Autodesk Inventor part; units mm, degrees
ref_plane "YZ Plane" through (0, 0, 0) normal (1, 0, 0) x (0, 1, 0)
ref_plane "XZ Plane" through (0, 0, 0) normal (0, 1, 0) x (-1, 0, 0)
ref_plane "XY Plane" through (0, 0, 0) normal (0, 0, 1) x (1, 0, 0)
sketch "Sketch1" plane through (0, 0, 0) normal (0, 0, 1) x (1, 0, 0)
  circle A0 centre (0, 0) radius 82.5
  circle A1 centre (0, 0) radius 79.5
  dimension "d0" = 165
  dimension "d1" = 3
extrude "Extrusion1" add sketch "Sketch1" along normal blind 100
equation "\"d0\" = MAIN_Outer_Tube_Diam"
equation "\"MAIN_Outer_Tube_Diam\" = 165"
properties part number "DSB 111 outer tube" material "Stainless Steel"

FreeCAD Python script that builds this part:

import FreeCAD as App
import Part
import Sketcher
from FreeCAD import Vector
Q = App.Units.Quantity

doc = App.newDocument("Part")
params = doc.addObject("Spreadsheet::Sheet", "Params")
for row, (alias, value) in enumerate([
    ("sketch1_diameter", "165 mm"),
    ("sketch1_diameter2", "159 mm"),
    ("pad1_length", "100 mm"),
], start=1):
    params.set(f"A{row}", alias)
    params.set(f"B{row}", "=" + value)
    params.setAlias(f"B{row}", alias)

body = doc.addObject("PartDesign::Body", "Body")

# Sketch on XY plane
sketch1 = body.newObject("Sketcher::SketchObject", "Sketch")
sketch1.AttachmentSupport = (doc.getObject("XY_Plane"), [""])
sketch1.MapMode = "FlatFace"
sketch1.addGeometry(Part.Circle(Vector(0, 0, 0), Vector(0, 0, 1), 82), False)
sketch1.addGeometry(Part.Circle(Vector(0, 0, 0), Vector(0, 0, 1), 80), False)
sketch1.addConstraint(Sketcher.Constraint("Coincident", 0, 3, -1, 1))
sketch1.addConstraint(Sketcher.Constraint("Coincident", 1, 3, -1, 1))
sketch1.addConstraint(Sketcher.Constraint("Diameter", 0, Q("165 mm")))
sketch1.addConstraint(Sketcher.Constraint("Diameter", 1, Q("159 mm")))
sketch1.setExpression("Constraints[2]", "Params.sketch1_diameter")
sketch1.setExpression("Constraints[3]", "Params.sketch1_diameter2")
pad1 = body.newObject("PartDesign::Pad", "Pad")
pad1.Profile = sketch1
pad1.setExpression("Length", "Params.pad1_length")

doc.recompute()
